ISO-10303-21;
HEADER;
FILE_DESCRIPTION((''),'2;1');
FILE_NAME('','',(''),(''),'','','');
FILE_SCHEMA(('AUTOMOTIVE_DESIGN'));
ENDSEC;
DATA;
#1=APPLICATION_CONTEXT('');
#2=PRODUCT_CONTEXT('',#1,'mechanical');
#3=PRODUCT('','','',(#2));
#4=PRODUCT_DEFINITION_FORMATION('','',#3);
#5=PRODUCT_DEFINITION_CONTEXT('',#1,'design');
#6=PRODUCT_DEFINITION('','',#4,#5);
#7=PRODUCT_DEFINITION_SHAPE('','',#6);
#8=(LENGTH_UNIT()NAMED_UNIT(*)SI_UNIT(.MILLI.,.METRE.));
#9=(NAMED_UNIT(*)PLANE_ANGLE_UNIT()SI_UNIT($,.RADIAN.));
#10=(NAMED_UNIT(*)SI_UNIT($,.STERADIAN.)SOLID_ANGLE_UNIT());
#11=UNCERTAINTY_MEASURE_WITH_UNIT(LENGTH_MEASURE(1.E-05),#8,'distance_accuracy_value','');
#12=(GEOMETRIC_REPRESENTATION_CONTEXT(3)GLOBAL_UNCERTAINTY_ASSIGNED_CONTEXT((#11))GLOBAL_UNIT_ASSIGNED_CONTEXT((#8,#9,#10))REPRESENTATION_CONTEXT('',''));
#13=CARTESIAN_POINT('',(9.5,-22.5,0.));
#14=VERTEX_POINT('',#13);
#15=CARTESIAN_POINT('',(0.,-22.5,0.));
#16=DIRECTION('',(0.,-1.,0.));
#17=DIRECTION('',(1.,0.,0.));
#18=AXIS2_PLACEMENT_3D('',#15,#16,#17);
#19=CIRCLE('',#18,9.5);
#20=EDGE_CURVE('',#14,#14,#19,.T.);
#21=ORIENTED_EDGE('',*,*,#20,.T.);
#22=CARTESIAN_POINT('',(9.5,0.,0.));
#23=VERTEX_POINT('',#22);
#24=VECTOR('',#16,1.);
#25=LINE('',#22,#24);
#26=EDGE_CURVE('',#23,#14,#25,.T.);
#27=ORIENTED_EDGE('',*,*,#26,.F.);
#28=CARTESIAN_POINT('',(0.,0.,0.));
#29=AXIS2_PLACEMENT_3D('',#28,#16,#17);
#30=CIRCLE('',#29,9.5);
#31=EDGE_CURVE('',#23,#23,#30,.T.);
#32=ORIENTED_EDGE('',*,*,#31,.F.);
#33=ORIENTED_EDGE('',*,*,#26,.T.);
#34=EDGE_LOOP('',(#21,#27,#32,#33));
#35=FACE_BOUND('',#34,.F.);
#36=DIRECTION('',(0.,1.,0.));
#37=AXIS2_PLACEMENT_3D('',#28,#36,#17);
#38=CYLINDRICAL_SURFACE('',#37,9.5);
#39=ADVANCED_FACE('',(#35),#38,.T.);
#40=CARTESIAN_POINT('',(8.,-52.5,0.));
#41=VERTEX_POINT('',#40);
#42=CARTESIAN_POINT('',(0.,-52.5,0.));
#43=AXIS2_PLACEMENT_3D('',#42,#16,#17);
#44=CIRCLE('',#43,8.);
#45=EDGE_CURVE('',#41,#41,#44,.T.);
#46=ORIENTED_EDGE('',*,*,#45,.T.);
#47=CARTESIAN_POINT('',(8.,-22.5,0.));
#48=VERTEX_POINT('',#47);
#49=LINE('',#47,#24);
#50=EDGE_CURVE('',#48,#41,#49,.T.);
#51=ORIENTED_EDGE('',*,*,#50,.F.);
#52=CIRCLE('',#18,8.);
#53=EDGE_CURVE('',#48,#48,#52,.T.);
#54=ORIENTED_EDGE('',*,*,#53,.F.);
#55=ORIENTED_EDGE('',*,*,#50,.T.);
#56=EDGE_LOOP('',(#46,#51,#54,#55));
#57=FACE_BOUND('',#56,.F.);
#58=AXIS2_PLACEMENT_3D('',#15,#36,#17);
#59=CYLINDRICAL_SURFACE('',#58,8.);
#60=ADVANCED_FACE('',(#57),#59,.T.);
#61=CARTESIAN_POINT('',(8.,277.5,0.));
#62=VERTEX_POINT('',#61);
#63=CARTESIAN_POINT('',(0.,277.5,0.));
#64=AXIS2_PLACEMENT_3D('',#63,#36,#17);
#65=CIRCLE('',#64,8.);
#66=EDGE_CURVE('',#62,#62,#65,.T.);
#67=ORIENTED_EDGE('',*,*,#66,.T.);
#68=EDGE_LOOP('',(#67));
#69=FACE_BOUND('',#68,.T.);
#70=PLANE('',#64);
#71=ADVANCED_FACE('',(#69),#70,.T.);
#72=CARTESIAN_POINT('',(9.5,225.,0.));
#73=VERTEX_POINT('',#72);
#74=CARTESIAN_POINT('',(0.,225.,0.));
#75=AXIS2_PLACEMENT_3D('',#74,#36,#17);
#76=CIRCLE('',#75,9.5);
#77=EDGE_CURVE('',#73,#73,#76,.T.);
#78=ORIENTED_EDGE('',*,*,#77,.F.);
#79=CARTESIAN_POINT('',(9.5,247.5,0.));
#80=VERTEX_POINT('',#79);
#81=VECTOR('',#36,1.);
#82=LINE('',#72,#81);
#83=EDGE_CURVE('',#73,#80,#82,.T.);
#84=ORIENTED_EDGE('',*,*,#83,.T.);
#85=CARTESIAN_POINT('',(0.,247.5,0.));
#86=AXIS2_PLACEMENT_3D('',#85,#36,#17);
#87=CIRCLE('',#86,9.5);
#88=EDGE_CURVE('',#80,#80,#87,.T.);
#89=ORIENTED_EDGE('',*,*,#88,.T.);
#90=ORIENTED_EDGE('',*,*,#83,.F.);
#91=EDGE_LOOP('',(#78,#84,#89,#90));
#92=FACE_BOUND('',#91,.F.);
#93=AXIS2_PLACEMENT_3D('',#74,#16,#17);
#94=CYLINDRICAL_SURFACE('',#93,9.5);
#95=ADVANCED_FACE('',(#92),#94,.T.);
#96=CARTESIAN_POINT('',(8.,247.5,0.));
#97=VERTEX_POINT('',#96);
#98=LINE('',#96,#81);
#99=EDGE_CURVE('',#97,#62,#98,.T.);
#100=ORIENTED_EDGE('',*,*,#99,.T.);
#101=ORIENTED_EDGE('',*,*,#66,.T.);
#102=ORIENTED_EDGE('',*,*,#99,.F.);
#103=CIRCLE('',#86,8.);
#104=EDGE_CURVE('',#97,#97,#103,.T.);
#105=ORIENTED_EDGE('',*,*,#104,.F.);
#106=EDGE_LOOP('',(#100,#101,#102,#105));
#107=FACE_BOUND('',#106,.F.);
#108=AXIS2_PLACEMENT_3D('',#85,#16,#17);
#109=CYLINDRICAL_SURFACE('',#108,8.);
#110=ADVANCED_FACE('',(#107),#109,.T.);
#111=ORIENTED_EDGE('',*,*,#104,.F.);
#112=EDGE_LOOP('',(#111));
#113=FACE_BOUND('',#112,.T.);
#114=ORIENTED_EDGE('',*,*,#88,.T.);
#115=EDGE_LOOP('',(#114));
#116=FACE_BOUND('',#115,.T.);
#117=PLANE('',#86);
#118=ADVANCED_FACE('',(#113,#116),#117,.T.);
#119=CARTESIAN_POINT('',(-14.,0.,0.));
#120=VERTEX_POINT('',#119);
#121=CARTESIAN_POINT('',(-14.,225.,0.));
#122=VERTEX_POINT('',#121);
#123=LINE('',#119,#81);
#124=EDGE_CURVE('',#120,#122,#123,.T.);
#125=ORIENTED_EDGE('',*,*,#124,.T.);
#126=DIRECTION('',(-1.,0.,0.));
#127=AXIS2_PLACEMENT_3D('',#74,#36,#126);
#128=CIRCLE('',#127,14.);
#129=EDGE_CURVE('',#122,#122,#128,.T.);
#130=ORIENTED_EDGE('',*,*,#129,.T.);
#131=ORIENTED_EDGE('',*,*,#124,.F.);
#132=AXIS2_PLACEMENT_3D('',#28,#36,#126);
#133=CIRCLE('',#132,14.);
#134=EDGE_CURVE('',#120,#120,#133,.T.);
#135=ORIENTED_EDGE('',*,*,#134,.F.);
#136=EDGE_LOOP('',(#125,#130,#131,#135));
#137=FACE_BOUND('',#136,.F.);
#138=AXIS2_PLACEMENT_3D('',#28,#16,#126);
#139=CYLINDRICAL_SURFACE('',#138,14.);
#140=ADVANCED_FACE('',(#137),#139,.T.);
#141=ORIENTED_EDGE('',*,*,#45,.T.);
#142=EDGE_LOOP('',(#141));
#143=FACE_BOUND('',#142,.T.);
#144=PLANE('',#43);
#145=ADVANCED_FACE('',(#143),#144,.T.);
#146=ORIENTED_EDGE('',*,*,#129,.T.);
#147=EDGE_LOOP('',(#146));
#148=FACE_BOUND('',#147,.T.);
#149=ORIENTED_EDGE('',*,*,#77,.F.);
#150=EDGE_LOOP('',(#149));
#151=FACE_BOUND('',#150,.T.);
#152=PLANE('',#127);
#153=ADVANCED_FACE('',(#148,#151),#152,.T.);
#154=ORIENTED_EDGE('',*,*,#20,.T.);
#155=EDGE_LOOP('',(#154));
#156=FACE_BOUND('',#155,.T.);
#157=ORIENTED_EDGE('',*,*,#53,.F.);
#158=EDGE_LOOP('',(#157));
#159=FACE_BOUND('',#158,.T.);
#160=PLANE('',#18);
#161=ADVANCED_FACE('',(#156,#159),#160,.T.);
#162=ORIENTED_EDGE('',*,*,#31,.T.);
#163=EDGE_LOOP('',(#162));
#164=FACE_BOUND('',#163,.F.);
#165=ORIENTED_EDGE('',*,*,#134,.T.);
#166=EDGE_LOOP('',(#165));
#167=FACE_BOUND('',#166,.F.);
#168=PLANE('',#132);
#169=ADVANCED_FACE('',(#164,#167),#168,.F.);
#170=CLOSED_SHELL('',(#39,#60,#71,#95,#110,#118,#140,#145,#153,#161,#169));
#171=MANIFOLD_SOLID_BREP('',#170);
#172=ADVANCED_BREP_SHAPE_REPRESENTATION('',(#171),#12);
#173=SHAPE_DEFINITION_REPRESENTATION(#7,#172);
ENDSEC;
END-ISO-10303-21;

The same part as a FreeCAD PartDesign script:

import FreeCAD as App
import Part
import Sketcher
from FreeCAD import Vector

doc = App.newDocument("Part")
body = doc.addObject("PartDesign::Body", "Body")

# Sketch on XZ plane
sketch1 = doc.addObject("Sketcher::SketchObject", "Sketch")
body.addObject(sketch1)
sketch1.AttachmentSupport = (doc.XZ_Plane, [""])
sketch1.MapMode = "FlatFace"
sketch1.addGeometry(Part.Circle(Vector(0, 0, 0), Vector(0, 0, 1), 14), False)
sketch1.addConstraint([
    Sketcher.Constraint("Coincident", 0, 3, -1, 1),
    Sketcher.Constraint("Diameter", 0, 28.0),
])
pad1 = doc.addObject("PartDesign::Pad", "Pad")
body.addObject(pad1)
pad1.Profile = sketch1
pad1.Length = 225
pad1.Reversed = True

# Sketch on XZ plane
sketch2 = doc.addObject("Sketcher::SketchObject", "Sketch001")
body.addObject(sketch2)
sketch2.AttachmentSupport = (doc.XZ_Plane, [""])
sketch2.MapMode = "FlatFace"
sketch2.AttachmentOffset = App.Placement(Vector(0, 0, -225), App.Rotation())
sketch2.addGeometry(Part.Circle(Vector(0, 0, 0), Vector(0, 0, 1), 9.5), False)
sketch2.addConstraint([
    Sketcher.Constraint("Coincident", 0, 3, -1, 1),
    Sketcher.Constraint("Diameter", 0, 19.0),
])
pad2 = doc.addObject("PartDesign::Pad", "Pad001")
body.addObject(pad2)
pad2.Profile = sketch2
pad2.Length = 22.5
pad2.Reversed = True

# Sketch on XZ plane
sketch3 = doc.addObject("Sketcher::SketchObject", "Sketch002")
body.addObject(sketch3)
sketch3.AttachmentSupport = (doc.XZ_Plane, [""])
sketch3.MapMode = "FlatFace"
sketch3.AttachmentOffset = App.Placement(Vector(0, 0, -247.5), App.Rotation())
sketch3.addGeometry(Part.Circle(Vector(0, 0, 0), Vector(0, 0, 1), 8), False)
sketch3.addConstraint([
    Sketcher.Constraint("Coincident", 0, 3, -1, 1),
    Sketcher.Constraint("Diameter", 0, 16.0),
])
pad3 = doc.addObject("PartDesign::Pad", "Pad002")
body.addObject(pad3)
pad3.Profile = sketch3
pad3.Length = 30
pad3.Reversed = True

# Sketch on XZ plane
sketch4 = doc.addObject("Sketcher::SketchObject", "Sketch003")
body.addObject(sketch4)
sketch4.AttachmentSupport = (doc.XZ_Plane, [""])
sketch4.MapMode = "FlatFace"
sketch4.addGeometry(Part.Circle(Vector(0, 0, 0), Vector(0, 0, 1), 9.5), False)
sketch4.addConstraint([
    Sketcher.Constraint("Coincident", 0, 3, -1, 1),
    Sketcher.Constraint("Diameter", 0, 19.0),
])
pad4 = doc.addObject("PartDesign::Pad", "Pad003")
body.addObject(pad4)
pad4.Profile = sketch4
pad4.Length = 22.5

# Sketch on XZ plane
sketch5 = doc.addObject("Sketcher::SketchObject", "Sketch004")
body.addObject(sketch5)
sketch5.AttachmentSupport = (doc.XZ_Plane, [""])
sketch5.MapMode = "FlatFace"
sketch5.AttachmentOffset = App.Placement(Vector(0, 0, 22.5), App.Rotation())
sketch5.addGeometry(Part.Circle(Vector(0, 0, 0), Vector(0, 0, 1), 8), False)
sketch5.addConstraint([
    Sketcher.Constraint("Coincident", 0, 3, -1, 1),
    Sketcher.Constraint("Diameter", 0, 16.0),
])
pad5 = doc.addObject("PartDesign::Pad", "Pad004")
body.addObject(pad5)
pad5.Profile = sketch5
pad5.Length = 30

doc.recompute()
